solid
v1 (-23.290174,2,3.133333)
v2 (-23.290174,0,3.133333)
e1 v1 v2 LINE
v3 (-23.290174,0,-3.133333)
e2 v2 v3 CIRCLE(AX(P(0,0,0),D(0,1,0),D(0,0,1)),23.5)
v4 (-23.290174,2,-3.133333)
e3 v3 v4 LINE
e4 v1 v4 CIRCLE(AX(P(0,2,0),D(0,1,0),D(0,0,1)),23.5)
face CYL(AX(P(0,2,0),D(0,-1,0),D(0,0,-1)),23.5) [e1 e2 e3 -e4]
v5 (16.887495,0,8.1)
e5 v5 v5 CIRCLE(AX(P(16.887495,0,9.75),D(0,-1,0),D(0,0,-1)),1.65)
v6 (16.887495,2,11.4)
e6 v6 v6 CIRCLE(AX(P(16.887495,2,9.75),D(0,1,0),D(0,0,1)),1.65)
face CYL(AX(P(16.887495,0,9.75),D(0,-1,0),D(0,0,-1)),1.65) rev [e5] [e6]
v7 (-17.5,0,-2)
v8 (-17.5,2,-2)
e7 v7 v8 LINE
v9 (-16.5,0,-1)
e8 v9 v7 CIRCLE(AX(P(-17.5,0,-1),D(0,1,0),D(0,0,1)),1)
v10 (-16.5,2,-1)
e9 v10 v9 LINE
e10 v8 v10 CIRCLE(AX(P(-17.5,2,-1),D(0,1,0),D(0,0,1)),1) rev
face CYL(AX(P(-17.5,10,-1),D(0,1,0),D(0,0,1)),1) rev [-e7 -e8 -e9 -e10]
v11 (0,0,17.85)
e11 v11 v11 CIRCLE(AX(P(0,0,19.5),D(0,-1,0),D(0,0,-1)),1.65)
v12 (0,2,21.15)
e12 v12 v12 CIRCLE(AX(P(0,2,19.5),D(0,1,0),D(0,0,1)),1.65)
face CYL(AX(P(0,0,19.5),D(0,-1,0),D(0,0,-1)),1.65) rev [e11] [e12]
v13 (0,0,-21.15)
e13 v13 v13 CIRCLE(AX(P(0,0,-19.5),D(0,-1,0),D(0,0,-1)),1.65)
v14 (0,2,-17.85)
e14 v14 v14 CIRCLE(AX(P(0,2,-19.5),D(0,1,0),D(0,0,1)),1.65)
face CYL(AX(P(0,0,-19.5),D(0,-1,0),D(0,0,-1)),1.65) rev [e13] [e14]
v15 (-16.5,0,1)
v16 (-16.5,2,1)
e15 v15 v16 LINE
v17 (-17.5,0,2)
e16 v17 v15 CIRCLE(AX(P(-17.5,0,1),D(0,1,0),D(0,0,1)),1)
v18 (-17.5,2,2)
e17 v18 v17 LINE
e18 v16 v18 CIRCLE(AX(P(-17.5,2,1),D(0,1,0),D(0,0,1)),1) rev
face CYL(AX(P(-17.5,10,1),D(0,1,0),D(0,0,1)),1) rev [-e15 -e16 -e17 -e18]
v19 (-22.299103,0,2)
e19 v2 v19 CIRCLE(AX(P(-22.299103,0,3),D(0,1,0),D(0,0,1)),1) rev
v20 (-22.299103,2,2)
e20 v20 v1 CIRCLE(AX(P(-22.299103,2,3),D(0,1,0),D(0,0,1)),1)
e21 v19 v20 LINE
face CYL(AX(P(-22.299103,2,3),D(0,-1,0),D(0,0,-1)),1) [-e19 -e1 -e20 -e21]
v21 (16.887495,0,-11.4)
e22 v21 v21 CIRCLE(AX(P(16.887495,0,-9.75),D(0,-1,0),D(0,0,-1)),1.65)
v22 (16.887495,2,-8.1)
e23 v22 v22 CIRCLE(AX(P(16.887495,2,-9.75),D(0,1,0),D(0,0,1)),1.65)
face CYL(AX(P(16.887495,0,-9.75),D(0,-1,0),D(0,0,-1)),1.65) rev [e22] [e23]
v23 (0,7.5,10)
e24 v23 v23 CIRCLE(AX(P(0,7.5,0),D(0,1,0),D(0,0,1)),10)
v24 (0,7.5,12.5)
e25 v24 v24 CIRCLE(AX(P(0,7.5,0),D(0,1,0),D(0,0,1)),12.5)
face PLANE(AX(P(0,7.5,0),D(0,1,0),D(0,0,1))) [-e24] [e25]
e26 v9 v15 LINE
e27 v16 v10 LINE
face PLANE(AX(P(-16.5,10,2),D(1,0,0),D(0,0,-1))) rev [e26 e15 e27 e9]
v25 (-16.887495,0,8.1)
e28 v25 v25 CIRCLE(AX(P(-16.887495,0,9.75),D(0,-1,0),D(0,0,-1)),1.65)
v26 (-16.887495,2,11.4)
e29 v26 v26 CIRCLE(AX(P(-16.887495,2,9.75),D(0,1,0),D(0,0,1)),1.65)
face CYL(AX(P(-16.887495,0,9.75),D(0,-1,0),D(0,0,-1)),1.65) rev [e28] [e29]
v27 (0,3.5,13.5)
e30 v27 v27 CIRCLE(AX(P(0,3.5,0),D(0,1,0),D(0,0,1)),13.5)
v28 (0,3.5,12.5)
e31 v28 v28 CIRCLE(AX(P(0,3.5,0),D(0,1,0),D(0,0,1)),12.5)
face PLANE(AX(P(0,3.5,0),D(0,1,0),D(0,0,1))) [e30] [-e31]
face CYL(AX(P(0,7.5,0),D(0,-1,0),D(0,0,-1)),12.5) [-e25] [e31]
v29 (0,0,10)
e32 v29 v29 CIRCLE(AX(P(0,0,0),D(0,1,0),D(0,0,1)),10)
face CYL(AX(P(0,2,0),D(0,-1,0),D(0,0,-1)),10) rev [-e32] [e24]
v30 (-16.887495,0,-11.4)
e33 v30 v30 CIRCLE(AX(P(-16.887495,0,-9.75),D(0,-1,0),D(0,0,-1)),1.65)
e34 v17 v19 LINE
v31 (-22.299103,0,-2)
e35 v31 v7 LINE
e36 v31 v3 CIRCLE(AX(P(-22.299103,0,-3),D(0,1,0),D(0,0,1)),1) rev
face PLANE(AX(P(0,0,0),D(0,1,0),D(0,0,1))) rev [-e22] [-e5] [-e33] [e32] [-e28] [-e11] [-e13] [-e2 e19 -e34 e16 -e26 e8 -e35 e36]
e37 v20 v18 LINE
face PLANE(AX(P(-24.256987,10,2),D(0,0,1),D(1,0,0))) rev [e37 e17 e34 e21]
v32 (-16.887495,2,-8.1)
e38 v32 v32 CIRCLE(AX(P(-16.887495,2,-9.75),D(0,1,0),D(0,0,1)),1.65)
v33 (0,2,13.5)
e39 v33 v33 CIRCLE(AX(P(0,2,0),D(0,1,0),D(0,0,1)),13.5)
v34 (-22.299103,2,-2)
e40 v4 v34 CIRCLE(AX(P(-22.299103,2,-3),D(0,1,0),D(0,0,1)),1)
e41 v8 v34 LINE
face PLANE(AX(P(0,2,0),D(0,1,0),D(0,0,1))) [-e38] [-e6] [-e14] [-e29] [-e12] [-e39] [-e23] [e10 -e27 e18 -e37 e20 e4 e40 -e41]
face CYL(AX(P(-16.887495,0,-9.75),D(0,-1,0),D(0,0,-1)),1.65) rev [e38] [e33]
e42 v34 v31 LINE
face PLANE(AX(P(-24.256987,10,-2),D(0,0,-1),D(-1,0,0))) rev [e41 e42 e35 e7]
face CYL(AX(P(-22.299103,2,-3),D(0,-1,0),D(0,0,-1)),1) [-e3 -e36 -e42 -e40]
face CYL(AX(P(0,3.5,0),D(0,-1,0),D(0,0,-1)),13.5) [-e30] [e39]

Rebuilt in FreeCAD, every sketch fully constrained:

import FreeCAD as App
import Part
import Sketcher
Q = App.Units.Quantity


def edges_at(feature, points):
    """Names of the edges that pass closest to the given points."""
    edges = feature.Shape.Edges
    near = lambda p: min(range(len(edges)), key=lambda i: edges[i].distToShape(Part.Vertex(*p))[0])
    return sorted({f"Edge{near(p) + 1}" for p in points})


def add_polygon(sketch, points):
    """Adds a closed chain of lines whose ends are joined by coincident constraints."""
    first, n = sketch.GeometryCount, len(points)
    for a, b in zip(points, points[1:] + points[:1]):
        sketch.addGeometry(Part.LineSegment(App.Vector(*a, 0), App.Vector(*b, 0)), False)
    for i in range(n):
        sketch.addConstraint(Sketcher.Constraint("Coincident", first + i, 2, first + (i + 1) % n, 1))

doc = App.newDocument("Part")
body = doc.addObject("PartDesign::Body", "Body")

# Sketch on XZ plane
sketch1 = body.newObject("Sketcher::SketchObject", "Sketch")
sketch1.AttachmentSupport = (doc.getObject("XZ_Plane"), [""])
sketch1.MapMode = "FlatFace"
sketch1.addGeometry(Part.Circle(App.Vector(0, 0, 0), App.Vector(0, 0, 1), 23.5), False)
sketch1.addGeometry(Part.Circle(App.Vector(-16.9, -9.8, 0), App.Vector(0, 0, 1), 1), False)
sketch1.addGeometry(Part.Circle(App.Vector(0, -19.5, 0), App.Vector(0, 0, 1), 1), False)
sketch1.addGeometry(Part.Circle(App.Vector(-16.9, 9.8, 0), App.Vector(0, 0, 1), 1), False)
sketch1.addGeometry(Part.Circle(App.Vector(16.9, -9.8, 0), App.Vector(0, 0, 1), 1), False)
sketch1.addGeometry(Part.Circle(App.Vector(0, 0, 0), App.Vector(0, 0, 1), 10), False)
sketch1.addGeometry(Part.Circle(App.Vector(0, 19.5, 0), App.Vector(0, 0, 1), 1), False)
sketch1.addGeometry(Part.Circle(App.Vector(16.9, 9.8, 0), App.Vector(0, 0, 1), 1), False)
sketch1.addConstraint(Sketcher.Constraint("Coincident", 0, 3, -1, 1))
sketch1.addConstraint(Sketcher.Constraint("Coincident", 5, 3, -1, 1))
sketch1.addConstraint(Sketcher.Constraint("Equal", 1, 2))
sketch1.addConstraint(Sketcher.Constraint("Equal", 2, 3))
sketch1.addConstraint(Sketcher.Constraint("Equal", 3, 4))
sketch1.addConstraint(Sketcher.Constraint("Equal", 4, 6))
sketch1.addConstraint(Sketcher.Constraint("Equal", 6, 7))
sketch1.addConstraint(Sketcher.Constraint("Symmetric", 3, 3, 4, 3, -1, 1))
sketch1.addConstraint(Sketcher.Constraint("Symmetric", 2, 3, 6, 3, -1, 1))
sketch1.addConstraint(Sketcher.Constraint("Symmetric", 1, 3, 7, 3, -1, 1))
sketch1.addConstraint(Sketcher.Constraint("Symmetric", 1, 3, 4, 3, -2))
sketch1.addConstraint(Sketcher.Constraint("PointOnObject", 2, 3, -2))
sketch1.addConstraint(Sketcher.Constraint("Diameter", 0, Q("47 mm")))
sketch1.addConstraint(Sketcher.Constraint("Diameter", 1, Q("2 mm")))
sketch1.addConstraint(Sketcher.Constraint("Diameter", 5, Q("20 mm")))
sketch1.addConstraint(Sketcher.Constraint("DistanceY", 2, 3, -1, 1, Q("19.5 mm")))
sketch1.addConstraint(Sketcher.Constraint("DistanceY", 1, 3, 3, 3, Q("19.5 mm")))
sketch1.addConstraint(Sketcher.Constraint("DistanceX", 1, 3, 4, 3, Q("33.774991 mm")))
pad1 = body.newObject("PartDesign::Pad", "Pad")
pad1.Profile = sketch1
pad1.Length = 2
pad1.Reversed = True

# Sketch on XZ plane
sketch2 = body.newObject("Sketcher::SketchObject", "Sketch001")
sketch2.AttachmentSupport = (doc.getObject("XZ_Plane"), [""])
sketch2.MapMode = "FlatFace"
sketch2.AttachmentOffset = App.Placement(App.Vector(0, 0, -2), App.Rotation())
sketch2.addGeometry(Part.Circle(App.Vector(0, 0, 0), App.Vector(0, 0, 1), 12), False)
sketch2.addGeometry(Part.Circle(App.Vector(0, 0, 0), App.Vector(0, 0, 1), 10), False)
sketch2.addConstraint(Sketcher.Constraint("Coincident", 0, 3, -1, 1))
sketch2.addConstraint(Sketcher.Constraint("Coincident", 1, 3, -1, 1))
sketch2.addConstraint(Sketcher.Constraint("Diameter", 0, Q("25 mm")))
sketch2.addConstraint(Sketcher.Constraint("Diameter", 1, Q("20 mm")))
pad2 = body.newObject("PartDesign::Pad", "Pad001")
pad2.Profile = sketch2
pad2.Length = 5.5
pad2.Reversed = True

# Sketch on XZ plane
sketch3 = body.newObject("Sketcher::SketchObject", "Sketch002")
sketch3.AttachmentSupport = (doc.getObject("XZ_Plane"), [""])
sketch3.MapMode = "FlatFace"
sketch3.AttachmentOffset = App.Placement(App.Vector(0, 0, -2), App.Rotation())
sketch3.addGeometry(Part.Circle(App.Vector(0, 0, 0), App.Vector(0, 0, 1), 14), False)
sketch3.addGeometry(Part.Circle(App.Vector(0, 0, 0), App.Vector(0, 0, 1), 12), False)
sketch3.addConstraint(Sketcher.Constraint("Coincident", 0, 3, -1, 1))
sketch3.addConstraint(Sketcher.Constraint("Coincident", 1, 3, -1, 1))
sketch3.addConstraint(Sketcher.Constraint("Diameter", 0, Q("27 mm")))
sketch3.addConstraint(Sketcher.Constraint("Diameter", 1, Q("25 mm")))
pad3 = body.newObject("PartDesign::Pad", "Pad002")
pad3.Profile = sketch3
pad3.Length = 1.5
pad3.Reversed = True

# Sketch on XZ plane
sketch4 = body.newObject("Sketcher::SketchObject", "Sketch003")
sketch4.AttachmentSupport = (doc.getObject("XZ_Plane"), [""])
sketch4.MapMode = "FlatFace"
add_polygon(sketch4, [(-24.3, 2), (-24.3, -2), (-16.5, -2), (-16.5, 2)])  # lines 0-3
sketch4.addConstraint(Sketcher.Constraint("Vertical", 0))
sketch4.addConstraint(Sketcher.Constraint("Horizontal", 1))
sketch4.addConstraint(Sketcher.Constraint("Vertical", 2))
sketch4.addConstraint(Sketcher.Constraint("Horizontal", 3))
sketch4.addConstraint(Sketcher.Constraint("DistanceY", 0, 2, 0, 1, Q("4 mm")))
sketch4.addConstraint(Sketcher.Constraint("DistanceY", 0, 2, -1, 1, Q("2 mm")))
sketch4.addConstraint(Sketcher.Constraint("DistanceX", 1, 2, -1, 1, Q("16.5 mm")))
sketch4.addConstraint(Sketcher.Constraint("DistanceX", 1, 1, 1, 2, Q("7.756987 mm")))
pocket1 = body.newObject("PartDesign::Pocket", "Pocket")
pocket1.Profile = sketch4
pocket1.Length = 10
doc.recompute()

fillet = body.newObject("PartDesign::Fillet", "Fillet")
fillet.Base = (pocket1, edges_at(pocket1, [
    (-23.415, 1, -2),
    (-23.415, 1, 2),
    (-16.5, 1, 2),
    (-16.5, 1, -2),
]))
fillet.Radius = 1

# Sketch on XZ plane
sketch5 = body.newObject("Sketcher::SketchObject", "Sketch004")
sketch5.AttachmentSupport = (doc.getObject("XZ_Plane"), [""])
sketch5.MapMode = "FlatFace"
sketch5.addGeometry(Part.Circle(App.Vector(0, -19.5, 0), App.Vector(0, 0, 1), 1.6), False)
sketch5.addGeometry(Part.Circle(App.Vector(16.9, -9.8, 0), App.Vector(0, 0, 1), 1.6), False)
sketch5.addGeometry(Part.Circle(App.Vector(16.9, 9.8, 0), App.Vector(0, 0, 1), 1.6), False)
sketch5.addGeometry(Part.Circle(App.Vector(0, 19.5, 0), App.Vector(0, 0, 1), 1.6), False)
sketch5.addGeometry(Part.Circle(App.Vector(-16.9, 9.8, 0), App.Vector(0, 0, 1), 1.6), False)
sketch5.addGeometry(Part.Circle(App.Vector(-16.9, -9.8, 0), App.Vector(0, 0, 1), 1.6), False)
sketch5.addConstraint(Sketcher.Constraint("Equal", 0, 1))
sketch5.addConstraint(Sketcher.Constraint("Equal", 1, 2))
sketch5.addConstraint(Sketcher.Constraint("Equal", 2, 3))
sketch5.addConstraint(Sketcher.Constraint("Equal", 3, 4))
sketch5.addConstraint(Sketcher.Constraint("Equal", 4, 5))
sketch5.addConstraint(Sketcher.Constraint("Symmetric", 0, 3, 3, 3, -1, 1))
sketch5.addConstraint(Sketcher.Constraint("Symmetric", 1, 3, 4, 3, -1, 1))
sketch5.addConstraint(Sketcher.Constraint("Symmetric", 2, 3, 5, 3, -1, 1))
sketch5.addConstraint(Sketcher.Constraint("Symmetric", 2, 3, 4, 3, -2))
sketch5.addConstraint(Sketcher.Constraint("PointOnObject", 0, 3, -2))
sketch5.addConstraint(Sketcher.Constraint("Diameter", 0, Q("3.3 mm")))
sketch5.addConstraint(Sketcher.Constraint("DistanceY", 0, 3, 3, 3, Q("39 mm")))
sketch5.addConstraint(Sketcher.Constraint("DistanceY", 1, 3, 2, 3, Q("19.5 mm")))
sketch5.addConstraint(Sketcher.Constraint("DistanceX", 4, 3, 2, 3, Q("33.774991 mm")))
doc.recompute()
hole = body.newObject("PartDesign::Hole", "Hole")
hole.Profile = sketch5
hole.ThreadType = "None"
hole.Diameter = 3.3
hole.DepthType = "ThroughAll"

doc.recompute()
